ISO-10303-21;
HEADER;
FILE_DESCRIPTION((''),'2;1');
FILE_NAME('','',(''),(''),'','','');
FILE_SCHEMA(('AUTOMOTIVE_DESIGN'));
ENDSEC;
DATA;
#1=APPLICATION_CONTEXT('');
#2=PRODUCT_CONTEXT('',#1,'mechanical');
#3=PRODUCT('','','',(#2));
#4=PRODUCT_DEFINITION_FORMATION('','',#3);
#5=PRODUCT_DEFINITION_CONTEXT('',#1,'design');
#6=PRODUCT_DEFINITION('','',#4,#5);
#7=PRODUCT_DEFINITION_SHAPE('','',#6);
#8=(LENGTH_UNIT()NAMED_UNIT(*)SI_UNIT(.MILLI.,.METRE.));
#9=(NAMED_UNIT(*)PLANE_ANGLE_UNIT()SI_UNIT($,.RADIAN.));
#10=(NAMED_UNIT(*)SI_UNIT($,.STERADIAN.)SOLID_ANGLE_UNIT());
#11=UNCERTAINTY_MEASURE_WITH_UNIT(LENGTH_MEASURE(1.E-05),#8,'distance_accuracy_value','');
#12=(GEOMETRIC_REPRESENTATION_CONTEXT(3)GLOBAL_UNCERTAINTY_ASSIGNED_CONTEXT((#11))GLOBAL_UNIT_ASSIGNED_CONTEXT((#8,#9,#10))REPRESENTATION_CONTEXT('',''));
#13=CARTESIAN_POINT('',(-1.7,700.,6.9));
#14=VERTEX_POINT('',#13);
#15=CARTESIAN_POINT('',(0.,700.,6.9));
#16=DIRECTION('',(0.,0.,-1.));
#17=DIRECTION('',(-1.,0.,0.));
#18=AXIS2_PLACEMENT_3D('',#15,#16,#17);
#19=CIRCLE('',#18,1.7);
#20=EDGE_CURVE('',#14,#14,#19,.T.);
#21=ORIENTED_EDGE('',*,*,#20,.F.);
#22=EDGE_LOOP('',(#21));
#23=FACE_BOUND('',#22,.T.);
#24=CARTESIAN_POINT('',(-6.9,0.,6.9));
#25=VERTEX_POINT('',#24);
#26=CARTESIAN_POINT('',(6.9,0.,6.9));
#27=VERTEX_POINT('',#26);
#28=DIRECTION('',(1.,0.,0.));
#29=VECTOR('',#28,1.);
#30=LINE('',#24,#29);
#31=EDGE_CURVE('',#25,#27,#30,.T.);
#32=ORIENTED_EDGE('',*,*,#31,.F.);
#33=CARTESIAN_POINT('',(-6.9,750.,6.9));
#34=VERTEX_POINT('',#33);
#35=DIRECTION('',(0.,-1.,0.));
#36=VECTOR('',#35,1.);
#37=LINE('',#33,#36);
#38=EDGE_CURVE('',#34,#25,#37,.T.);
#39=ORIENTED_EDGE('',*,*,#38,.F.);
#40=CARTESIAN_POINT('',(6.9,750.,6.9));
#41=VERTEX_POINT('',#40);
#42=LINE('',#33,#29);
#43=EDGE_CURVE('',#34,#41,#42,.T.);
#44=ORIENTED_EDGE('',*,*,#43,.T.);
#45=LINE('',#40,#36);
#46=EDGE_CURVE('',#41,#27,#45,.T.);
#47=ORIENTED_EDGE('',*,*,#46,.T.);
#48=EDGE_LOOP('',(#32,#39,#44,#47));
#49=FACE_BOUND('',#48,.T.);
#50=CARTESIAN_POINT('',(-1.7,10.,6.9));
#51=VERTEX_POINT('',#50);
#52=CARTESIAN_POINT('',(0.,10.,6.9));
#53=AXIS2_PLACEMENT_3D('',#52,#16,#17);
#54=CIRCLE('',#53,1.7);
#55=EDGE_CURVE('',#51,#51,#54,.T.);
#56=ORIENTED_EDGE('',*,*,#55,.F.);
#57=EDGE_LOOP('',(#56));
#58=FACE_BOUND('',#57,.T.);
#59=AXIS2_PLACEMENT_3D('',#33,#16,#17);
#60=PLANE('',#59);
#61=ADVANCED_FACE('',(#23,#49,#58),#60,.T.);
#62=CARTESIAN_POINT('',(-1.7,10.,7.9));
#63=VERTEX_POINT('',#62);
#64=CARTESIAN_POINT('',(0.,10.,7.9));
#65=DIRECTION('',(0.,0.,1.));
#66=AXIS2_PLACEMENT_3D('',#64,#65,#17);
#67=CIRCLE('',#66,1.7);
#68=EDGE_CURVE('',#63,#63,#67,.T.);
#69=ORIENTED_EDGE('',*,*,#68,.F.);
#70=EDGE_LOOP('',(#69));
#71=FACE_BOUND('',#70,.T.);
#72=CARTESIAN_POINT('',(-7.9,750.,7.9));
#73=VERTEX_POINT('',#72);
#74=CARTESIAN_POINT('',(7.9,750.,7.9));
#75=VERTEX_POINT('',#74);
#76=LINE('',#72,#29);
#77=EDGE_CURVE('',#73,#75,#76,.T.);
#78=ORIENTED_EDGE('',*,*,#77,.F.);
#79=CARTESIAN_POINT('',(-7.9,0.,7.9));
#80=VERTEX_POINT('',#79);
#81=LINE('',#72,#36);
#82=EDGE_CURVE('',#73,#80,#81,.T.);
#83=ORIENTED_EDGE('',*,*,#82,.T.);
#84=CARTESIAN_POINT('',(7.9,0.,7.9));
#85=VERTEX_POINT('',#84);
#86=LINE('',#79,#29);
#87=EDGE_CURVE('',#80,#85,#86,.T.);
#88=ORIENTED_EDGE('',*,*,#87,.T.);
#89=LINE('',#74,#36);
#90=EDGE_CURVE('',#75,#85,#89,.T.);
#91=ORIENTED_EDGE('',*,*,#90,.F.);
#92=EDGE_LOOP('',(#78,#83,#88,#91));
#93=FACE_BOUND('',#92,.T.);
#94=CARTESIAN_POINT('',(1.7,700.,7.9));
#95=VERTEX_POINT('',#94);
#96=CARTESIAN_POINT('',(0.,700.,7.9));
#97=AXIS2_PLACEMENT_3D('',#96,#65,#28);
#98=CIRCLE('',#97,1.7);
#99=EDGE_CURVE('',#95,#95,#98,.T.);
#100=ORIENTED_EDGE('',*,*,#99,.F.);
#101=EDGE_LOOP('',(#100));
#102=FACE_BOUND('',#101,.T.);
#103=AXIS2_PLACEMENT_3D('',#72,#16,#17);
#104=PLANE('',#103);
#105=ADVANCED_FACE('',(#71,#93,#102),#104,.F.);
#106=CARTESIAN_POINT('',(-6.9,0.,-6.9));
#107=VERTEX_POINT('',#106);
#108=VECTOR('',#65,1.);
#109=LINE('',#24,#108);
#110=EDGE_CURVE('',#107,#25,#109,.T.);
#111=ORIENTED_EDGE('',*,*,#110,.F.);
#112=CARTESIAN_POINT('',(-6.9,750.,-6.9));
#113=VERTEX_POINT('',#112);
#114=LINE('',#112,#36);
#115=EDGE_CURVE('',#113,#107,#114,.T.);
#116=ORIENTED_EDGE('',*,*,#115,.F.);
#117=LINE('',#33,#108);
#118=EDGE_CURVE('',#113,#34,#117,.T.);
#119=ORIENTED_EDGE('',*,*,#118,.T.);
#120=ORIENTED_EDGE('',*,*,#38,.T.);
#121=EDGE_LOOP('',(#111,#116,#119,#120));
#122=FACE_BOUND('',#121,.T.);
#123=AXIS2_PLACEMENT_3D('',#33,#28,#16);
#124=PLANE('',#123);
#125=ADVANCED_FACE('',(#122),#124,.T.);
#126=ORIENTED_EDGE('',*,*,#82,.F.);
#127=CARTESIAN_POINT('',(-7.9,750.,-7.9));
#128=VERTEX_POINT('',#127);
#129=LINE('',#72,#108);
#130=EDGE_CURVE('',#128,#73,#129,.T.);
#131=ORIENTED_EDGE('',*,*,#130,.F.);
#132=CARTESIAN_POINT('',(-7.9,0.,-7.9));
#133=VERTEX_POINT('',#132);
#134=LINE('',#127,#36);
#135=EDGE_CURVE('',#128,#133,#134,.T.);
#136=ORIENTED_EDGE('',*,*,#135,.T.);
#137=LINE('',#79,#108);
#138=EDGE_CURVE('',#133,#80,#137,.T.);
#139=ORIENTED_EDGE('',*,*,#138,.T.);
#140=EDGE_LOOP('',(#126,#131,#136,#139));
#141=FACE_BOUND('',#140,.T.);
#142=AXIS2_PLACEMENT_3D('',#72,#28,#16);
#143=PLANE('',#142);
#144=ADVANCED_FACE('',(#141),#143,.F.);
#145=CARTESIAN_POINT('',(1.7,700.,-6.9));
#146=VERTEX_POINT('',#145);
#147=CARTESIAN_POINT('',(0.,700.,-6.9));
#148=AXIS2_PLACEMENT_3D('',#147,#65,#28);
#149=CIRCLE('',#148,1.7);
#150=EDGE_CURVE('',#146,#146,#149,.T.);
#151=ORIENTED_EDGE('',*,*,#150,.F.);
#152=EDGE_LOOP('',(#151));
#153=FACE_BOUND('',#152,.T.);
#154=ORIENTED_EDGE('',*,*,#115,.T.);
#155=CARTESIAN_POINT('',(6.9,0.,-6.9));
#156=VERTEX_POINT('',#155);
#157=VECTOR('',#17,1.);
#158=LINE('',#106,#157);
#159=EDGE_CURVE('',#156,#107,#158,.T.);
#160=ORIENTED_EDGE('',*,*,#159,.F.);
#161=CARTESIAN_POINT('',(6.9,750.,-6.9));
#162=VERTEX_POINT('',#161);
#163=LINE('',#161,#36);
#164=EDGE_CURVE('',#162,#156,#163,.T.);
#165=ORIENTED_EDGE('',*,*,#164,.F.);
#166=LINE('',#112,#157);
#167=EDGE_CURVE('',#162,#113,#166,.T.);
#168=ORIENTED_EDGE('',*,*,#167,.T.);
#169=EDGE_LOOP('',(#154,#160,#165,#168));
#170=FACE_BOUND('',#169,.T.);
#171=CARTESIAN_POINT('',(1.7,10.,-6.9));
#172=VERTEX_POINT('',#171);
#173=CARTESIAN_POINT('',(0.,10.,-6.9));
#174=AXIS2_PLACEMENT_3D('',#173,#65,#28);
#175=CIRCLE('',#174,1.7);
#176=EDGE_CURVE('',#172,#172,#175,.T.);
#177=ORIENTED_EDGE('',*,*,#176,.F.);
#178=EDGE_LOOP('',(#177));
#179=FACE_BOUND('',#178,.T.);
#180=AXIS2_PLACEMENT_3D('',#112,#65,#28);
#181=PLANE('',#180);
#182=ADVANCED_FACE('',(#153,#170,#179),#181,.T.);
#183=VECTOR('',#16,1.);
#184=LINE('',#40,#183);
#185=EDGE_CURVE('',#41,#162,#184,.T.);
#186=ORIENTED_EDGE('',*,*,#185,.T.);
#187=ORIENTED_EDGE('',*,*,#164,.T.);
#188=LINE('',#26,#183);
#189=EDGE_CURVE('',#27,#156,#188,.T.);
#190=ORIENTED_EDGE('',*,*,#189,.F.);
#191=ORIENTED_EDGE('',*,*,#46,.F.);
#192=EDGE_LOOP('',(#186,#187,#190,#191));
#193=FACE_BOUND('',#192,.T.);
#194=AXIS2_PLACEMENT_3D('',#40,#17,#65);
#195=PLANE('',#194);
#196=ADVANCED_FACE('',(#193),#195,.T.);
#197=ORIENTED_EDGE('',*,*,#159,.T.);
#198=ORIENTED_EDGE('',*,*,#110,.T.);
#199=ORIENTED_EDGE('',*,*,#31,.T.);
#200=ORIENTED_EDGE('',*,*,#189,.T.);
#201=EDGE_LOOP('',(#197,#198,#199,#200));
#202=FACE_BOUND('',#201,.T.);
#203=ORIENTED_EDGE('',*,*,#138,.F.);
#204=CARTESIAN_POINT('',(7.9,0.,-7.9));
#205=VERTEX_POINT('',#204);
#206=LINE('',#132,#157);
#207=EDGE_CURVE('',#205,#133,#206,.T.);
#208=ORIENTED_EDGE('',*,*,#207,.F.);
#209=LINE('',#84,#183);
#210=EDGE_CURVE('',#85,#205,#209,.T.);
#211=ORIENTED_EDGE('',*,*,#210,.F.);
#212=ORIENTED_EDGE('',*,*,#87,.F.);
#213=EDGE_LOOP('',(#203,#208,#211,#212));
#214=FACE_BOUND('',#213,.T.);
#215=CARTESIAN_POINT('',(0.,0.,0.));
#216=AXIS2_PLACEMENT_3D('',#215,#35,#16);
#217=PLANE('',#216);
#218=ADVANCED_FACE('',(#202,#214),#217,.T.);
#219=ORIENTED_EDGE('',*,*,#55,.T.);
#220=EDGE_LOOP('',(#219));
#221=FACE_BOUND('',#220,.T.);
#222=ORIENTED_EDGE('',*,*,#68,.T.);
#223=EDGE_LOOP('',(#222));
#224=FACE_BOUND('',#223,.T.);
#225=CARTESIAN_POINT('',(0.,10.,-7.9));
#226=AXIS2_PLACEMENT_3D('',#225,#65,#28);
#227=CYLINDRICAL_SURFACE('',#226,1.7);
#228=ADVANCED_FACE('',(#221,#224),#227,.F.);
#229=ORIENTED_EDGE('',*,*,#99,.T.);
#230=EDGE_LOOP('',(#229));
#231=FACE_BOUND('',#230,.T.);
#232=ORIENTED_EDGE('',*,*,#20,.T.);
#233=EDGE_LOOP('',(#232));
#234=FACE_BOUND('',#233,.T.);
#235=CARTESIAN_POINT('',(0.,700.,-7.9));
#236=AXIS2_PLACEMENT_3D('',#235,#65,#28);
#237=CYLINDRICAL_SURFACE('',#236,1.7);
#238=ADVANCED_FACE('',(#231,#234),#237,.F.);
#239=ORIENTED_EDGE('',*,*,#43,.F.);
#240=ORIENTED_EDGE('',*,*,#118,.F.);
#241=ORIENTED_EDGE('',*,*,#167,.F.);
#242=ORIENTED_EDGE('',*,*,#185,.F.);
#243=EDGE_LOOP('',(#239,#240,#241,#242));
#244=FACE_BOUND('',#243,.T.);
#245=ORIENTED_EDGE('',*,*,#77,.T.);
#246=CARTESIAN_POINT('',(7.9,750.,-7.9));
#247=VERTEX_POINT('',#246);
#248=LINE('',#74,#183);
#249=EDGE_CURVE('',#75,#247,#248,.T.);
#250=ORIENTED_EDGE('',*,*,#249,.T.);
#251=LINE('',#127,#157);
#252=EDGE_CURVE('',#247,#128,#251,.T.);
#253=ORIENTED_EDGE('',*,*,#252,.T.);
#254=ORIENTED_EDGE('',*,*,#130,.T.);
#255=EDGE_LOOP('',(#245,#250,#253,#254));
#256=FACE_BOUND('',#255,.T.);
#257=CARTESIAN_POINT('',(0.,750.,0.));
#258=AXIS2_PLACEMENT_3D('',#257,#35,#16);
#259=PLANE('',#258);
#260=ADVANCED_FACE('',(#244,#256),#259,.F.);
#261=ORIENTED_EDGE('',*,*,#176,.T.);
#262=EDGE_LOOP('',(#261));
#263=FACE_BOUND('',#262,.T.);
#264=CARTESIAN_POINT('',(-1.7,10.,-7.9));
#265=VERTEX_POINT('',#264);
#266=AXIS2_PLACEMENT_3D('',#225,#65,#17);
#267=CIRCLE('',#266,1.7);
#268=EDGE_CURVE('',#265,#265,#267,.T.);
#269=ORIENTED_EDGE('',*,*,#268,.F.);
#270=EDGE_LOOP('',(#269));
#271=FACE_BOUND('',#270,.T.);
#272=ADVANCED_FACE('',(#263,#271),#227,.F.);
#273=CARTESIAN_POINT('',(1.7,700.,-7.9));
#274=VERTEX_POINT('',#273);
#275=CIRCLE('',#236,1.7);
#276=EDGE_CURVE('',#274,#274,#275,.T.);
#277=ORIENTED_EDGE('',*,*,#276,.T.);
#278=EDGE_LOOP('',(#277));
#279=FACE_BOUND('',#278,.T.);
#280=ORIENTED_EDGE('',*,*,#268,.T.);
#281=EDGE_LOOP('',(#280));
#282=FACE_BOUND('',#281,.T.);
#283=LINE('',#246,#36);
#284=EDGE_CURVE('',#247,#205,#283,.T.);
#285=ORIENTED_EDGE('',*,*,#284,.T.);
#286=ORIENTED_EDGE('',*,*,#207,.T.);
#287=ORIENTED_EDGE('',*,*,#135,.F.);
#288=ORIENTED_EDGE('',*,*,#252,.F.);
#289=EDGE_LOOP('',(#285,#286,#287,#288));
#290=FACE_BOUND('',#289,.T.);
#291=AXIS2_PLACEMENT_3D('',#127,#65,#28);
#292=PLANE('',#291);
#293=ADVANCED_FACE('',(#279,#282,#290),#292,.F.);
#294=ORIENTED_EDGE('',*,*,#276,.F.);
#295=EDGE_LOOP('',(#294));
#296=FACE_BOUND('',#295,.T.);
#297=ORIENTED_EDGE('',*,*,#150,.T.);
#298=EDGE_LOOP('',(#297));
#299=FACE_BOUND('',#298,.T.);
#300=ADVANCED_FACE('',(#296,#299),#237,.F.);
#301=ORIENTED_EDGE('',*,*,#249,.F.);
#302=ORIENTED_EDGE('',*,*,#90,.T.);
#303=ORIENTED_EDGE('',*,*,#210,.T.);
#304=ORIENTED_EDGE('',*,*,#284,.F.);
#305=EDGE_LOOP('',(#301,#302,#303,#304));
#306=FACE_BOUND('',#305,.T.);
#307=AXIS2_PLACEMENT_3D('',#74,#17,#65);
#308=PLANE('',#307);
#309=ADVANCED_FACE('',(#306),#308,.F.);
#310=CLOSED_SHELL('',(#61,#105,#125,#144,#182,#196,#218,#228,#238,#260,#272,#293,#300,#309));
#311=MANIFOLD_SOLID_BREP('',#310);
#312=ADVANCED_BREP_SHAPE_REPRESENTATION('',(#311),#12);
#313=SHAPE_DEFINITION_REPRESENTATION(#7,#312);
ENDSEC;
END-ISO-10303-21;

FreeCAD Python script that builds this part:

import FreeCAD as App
import Part
import Sketcher
from FreeCAD import Vector
Q = App.Units.Quantity

doc = App.newDocument("Part")
body = doc.addObject("PartDesign::Body", "Body")

# Sketch on XZ plane
sketch1 = body.newObject("Sketcher::SketchObject", "Sketch")
sketch1.AttachmentSupport = (doc.getObject("XZ_Plane"), [""])
sketch1.MapMode = "FlatFace"
sketch1.addGeometry(Part.LineSegment(Vector(-8, -8, 0), Vector(-8, 8, 0)), False)
sketch1.addGeometry(Part.LineSegment(Vector(-8, 8, 0), Vector(8, 8, 0)), False)
sketch1.addGeometry(Part.LineSegment(Vector(8, 8, 0), Vector(8, -8, 0)), False)
sketch1.addGeometry(Part.LineSegment(Vector(8, -8, 0), Vector(-8, -8, 0)), False)
sketch1.addGeometry(Part.LineSegment(Vector(7, 7, 0), Vector(-7, 7, 0)), False)
sketch1.addGeometry(Part.LineSegment(Vector(-7, 7, 0), Vector(-7, -7, 0)), False)
sketch1.addGeometry(Part.LineSegment(Vector(-7, -7, 0), Vector(7, -7, 0)), False)
sketch1.addGeometry(Part.LineSegment(Vector(7, -7, 0), Vector(7, 7, 0)), False)
sketch1.addConstraint(Sketcher.Constraint("Coincident", 0, 2, 1, 1))
sketch1.addConstraint(Sketcher.Constraint("Coincident", 1, 2, 2, 1))
sketch1.addConstraint(Sketcher.Constraint("Coincident", 2, 2, 3, 1))
sketch1.addConstraint(Sketcher.Constraint("Coincident", 3, 2, 0, 1))
sketch1.addConstraint(Sketcher.Constraint("Coincident", 4, 2, 5, 1))
sketch1.addConstraint(Sketcher.Constraint("Coincident", 5, 2, 6, 1))
sketch1.addConstraint(Sketcher.Constraint("Coincident", 6, 2, 7, 1))
sketch1.addConstraint(Sketcher.Constraint("Coincident", 7, 2, 4, 1))
sketch1.addConstraint(Sketcher.Constraint("Vertical", 0))
sketch1.addConstraint(Sketcher.Constraint("Horizontal", 1))
sketch1.addConstraint(Sketcher.Constraint("Vertical", 2))
sketch1.addConstraint(Sketcher.Constraint("Horizontal", 3))
sketch1.addConstraint(Sketcher.Constraint("Horizontal", 4))
sketch1.addConstraint(Sketcher.Constraint("Vertical", 5))
sketch1.addConstraint(Sketcher.Constraint("Horizontal", 6))
sketch1.addConstraint(Sketcher.Constraint("Vertical", 7))
sketch1.addConstraint(Sketcher.Constraint("Symmetric", 0, 2, 2, 2, -1, 1))
sketch1.addConstraint(Sketcher.Constraint("Symmetric", 4, 2, 6, 2, -1, 1))
sketch1.addConstraint(Sketcher.Constraint("Equal", 3, 0))
sketch1.addConstraint(Sketcher.Constraint("Equal", 6, 5))
sketch1.addConstraint(Sketcher.Constraint("DistanceX", 1, 1, 1, 2, Q("15.8 mm")))
sketch1.addConstraint(Sketcher.Constraint("DistanceX", 4, 2, 4, 1, Q("13.8 mm")))
pad1 = body.newObject("PartDesign::Pad", "Pad")
pad1.Profile = sketch1
pad1.Length = 750
pad1.Reversed = True

# Sketch on XY plane
sketch2 = body.newObject("Sketcher::SketchObject", "Sketch001")
sketch2.AttachmentSupport = (doc.getObject("XY_Plane"), [""])
sketch2.MapMode = "FlatFace"
sketch2.AttachmentOffset = App.Placement(Vector(0, 0, 7.9), App.Rotation())
sketch2.addGeometry(Part.Circle(Vector(0, 10, 0), Vector(0, 0, 1), 1.7), False)
sketch2.addGeometry(Part.Circle(Vector(0, 700, 0), Vector(0, 0, 1), 1.7), False)
sketch2.addConstraint(Sketcher.Constraint("Equal", 0, 1))
sketch2.addConstraint(Sketcher.Constraint("PointOnObject", 0, 3, -2))
sketch2.addConstraint(Sketcher.Constraint("PointOnObject", 1, 3, -2))
sketch2.addConstraint(Sketcher.Constraint("Diameter", 0, Q("3.4 mm")))
sketch2.addConstraint(Sketcher.Constraint("DistanceY", -1, 1, 0, 3, Q("10 mm")))
sketch2.addConstraint(Sketcher.Constraint("DistanceY", -1, 1, 1, 3, Q("700 mm")))
pocket1 = body.newObject("PartDesign::Pocket", "Pocket")
pocket1.Profile = sketch2
pocket1.Type = "ThroughAll"

doc.recompute()
